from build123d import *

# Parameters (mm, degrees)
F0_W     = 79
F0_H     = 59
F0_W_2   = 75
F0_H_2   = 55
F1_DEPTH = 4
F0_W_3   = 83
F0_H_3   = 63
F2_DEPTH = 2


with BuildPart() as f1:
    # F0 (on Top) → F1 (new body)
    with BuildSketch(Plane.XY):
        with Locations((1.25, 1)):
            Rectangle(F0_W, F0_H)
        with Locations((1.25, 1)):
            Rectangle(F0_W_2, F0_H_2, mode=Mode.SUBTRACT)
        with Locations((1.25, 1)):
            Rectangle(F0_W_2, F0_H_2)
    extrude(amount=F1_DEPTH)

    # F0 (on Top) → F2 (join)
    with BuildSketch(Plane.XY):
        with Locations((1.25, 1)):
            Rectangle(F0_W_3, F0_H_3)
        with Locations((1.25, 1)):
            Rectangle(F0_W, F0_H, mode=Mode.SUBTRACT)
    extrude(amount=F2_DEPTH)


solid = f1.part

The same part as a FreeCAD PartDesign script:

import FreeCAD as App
import Part
import Sketcher
from FreeCAD import Vector

doc = App.newDocument("Part")
body = doc.addObject("PartDesign::Body", "Body")

# Sketch on XY plane
sketch1 = body.newObject("Sketcher::SketchObject", "Sketch")
sketch1.AttachmentSupport = (doc.getObject("XY_Plane"), [""])
sketch1.MapMode = "FlatFace"
sketch1.addGeometry(Part.LineSegment(Vector(-38, 30, 0), Vector(-38, -28, 0)), False)
sketch1.addGeometry(Part.LineSegment(Vector(-38, -28, 0), Vector(41, -28, 0)), False)
sketch1.addGeometry(Part.LineSegment(Vector(41, -28, 0), Vector(41, 30, 0)), False)
sketch1.addGeometry(Part.LineSegment(Vector(41, 30, 0), Vector(-38, 30, 0)), False)
sketch1.addConstraint(Sketcher.Constraint("Coincident", 0, 2, 1, 1))
sketch1.addConstraint(Sketcher.Constraint("Coincident", 1, 2, 2, 1))
sketch1.addConstraint(Sketcher.Constraint("Coincident", 2, 2, 3, 1))
sketch1.addConstraint(Sketcher.Constraint("Coincident", 3, 2, 0, 1))
sketch1.addConstraint(Sketcher.Constraint("Vertical", 0))
sketch1.addConstraint(Sketcher.Constraint("Horizontal", 1))
sketch1.addConstraint(Sketcher.Constraint("Vertical", 2))
sketch1.addConstraint(Sketcher.Constraint("Horizontal", 3))
sketch1.addConstraint(Sketcher.Constraint("DistanceX", 1, 1, 1, 2, 79.0))
sketch1.addConstraint(Sketcher.Constraint("DistanceY", 0, 2, 0, 1, 59.0))
sketch1.addConstraint(Sketcher.Constraint("DistanceY", 0, 2, -1, 1, 28.5))
sketch1.addConstraint(Sketcher.Constraint("DistanceX", 0, 2, -1, 1, 38.25))
pad1 = body.newObject("PartDesign::Pad", "Pad")
pad1.Profile = sketch1
pad1.Length = 4

# Sketch on XY plane
sketch2 = body.newObject("Sketcher::SketchObject", "Sketch001")
sketch2.AttachmentSupport = (doc.getObject("XY_Plane"), [""])
sketch2.MapMode = "FlatFace"
sketch2.addGeometry(Part.LineSegment(Vector(-40, 32, 0), Vector(-40, -30, 0)), False)
sketch2.addGeometry(Part.LineSegment(Vector(-40, -30, 0), Vector(43, -30, 0)), False)
sketch2.addGeometry(Part.LineSegment(Vector(43, -30, 0), Vector(43, 32, 0)), False)
sketch2.addGeometry(Part.LineSegment(Vector(43, 32, 0), Vector(-40, 32, 0)), False)
sketch2.addGeometry(Part.LineSegment(Vector(41, -28, 0), Vector(-38, -28, 0)), False)
sketch2.addGeometry(Part.LineSegment(Vector(-38, -28, 0), Vector(-38, 30, 0)), False)
sketch2.addGeometry(Part.LineSegment(Vector(-38, 30, 0), Vector(41, 30, 0)), False)
sketch2.addGeometry(Part.LineSegment(Vector(41, 30, 0), Vector(41, -28, 0)), False)
sketch2.addConstraint(Sketcher.Constraint("Coincident", 0, 2, 1, 1))
sketch2.addConstraint(Sketcher.Constraint("Coincident", 1, 2, 2, 1))
sketch2.addConstraint(Sketcher.Constraint("Coincident", 2, 2, 3, 1))
sketch2.addConstraint(Sketcher.Constraint("Coincident", 3, 2, 0, 1))
sketch2.addConstraint(Sketcher.Constraint("Coincident", 4, 2, 5, 1))
sketch2.addConstraint(Sketcher.Constraint("Coincident", 5, 2, 6, 1))
sketch2.addConstraint(Sketcher.Constraint("Coincident", 6, 2, 7, 1))
sketch2.addConstraint(Sketcher.Constraint("Coincident", 7, 2, 4, 1))
sketch2.addConstraint(Sketcher.Constraint("Vertical", 0))
sketch2.addConstraint(Sketcher.Constraint("Horizontal", 1))
sketch2.addConstraint(Sketcher.Constraint("Vertical", 2))
sketch2.addConstraint(Sketcher.Constraint("Horizontal", 3))
sketch2.addConstraint(Sketcher.Constraint("Horizontal", 4))
sketch2.addConstraint(Sketcher.Constraint("Vertical", 5))
sketch2.addConstraint(Sketcher.Constraint("Horizontal", 6))
sketch2.addConstraint(Sketcher.Constraint("Vertical", 7))
sketch2.addConstraint(Sketcher.Constraint("DistanceX", 1, 1, 1, 2, 83.0))
sketch2.addConstraint(Sketcher.Constraint("DistanceX", 4, 2, 4, 1, 79.0))
sketch2.addConstraint(Sketcher.Constraint("DistanceY", 0, 2, 0, 1, 63.0))
sketch2.addConstraint(Sketcher.Constraint("DistanceY", 5, 1, 5, 2, 59.0))
sketch2.addConstraint(Sketcher.Constraint("DistanceX", 0, 2, 4, 2, 2.0))
sketch2.addConstraint(Sketcher.Constraint("DistanceY", 0, 2, 4, 2, 2.0))
sketch2.addConstraint(Sketcher.Constraint("DistanceY", 0, 2, -1, 1, 30.5))
sketch2.addConstraint(Sketcher.Constraint("DistanceX", 0, 2, -1, 1, 40.25))
pad2 = body.newObject("PartDesign::Pad", "Pad001")
pad2.Profile = sketch2
pad2.Length = 2

doc.recompute()
